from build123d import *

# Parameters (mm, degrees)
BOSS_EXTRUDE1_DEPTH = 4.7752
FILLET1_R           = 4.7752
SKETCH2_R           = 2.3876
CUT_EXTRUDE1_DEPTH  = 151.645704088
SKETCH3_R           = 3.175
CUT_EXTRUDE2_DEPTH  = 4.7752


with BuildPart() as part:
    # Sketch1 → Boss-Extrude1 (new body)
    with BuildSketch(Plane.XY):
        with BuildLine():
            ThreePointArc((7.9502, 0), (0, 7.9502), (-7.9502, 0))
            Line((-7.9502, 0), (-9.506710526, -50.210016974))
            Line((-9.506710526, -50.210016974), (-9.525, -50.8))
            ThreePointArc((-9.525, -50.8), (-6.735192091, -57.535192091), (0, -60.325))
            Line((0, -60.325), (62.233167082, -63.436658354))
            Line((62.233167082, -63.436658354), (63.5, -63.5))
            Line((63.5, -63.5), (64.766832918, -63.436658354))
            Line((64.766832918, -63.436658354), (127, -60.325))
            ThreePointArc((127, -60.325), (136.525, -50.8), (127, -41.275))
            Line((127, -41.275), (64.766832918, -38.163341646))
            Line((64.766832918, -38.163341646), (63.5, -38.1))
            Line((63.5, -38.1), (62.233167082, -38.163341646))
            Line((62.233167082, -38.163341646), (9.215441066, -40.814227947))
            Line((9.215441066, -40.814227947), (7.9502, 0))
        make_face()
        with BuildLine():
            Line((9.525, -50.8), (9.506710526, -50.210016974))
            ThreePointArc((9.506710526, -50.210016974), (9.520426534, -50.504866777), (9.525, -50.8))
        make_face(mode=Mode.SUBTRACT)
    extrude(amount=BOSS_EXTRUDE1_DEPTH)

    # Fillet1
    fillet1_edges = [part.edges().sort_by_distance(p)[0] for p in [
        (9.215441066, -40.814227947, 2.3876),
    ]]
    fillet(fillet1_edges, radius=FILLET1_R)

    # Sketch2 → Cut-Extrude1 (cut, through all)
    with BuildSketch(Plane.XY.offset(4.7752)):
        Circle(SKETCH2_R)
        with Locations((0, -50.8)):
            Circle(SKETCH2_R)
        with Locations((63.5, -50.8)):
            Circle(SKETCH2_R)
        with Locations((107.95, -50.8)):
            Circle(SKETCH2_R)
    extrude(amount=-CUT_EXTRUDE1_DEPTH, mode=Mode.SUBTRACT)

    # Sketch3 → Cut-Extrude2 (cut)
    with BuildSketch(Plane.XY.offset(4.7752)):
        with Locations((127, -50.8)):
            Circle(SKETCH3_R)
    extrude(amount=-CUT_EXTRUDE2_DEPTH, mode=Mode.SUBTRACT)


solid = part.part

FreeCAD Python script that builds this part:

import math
import FreeCAD as App
import Part
import Sketcher

V = App.Vector
Q = App.Units.Quantity


def edges_at(feature, points):
    """Names of the edges that pass closest to the given points."""
    edges = feature.Shape.Edges
    near = lambda p: min(range(len(edges)), key=lambda i: edges[i].distToShape(Part.Vertex(*p))[0])
    return sorted({f"Edge{near(p) + 1}" for p in points})

doc = App.newDocument("Part")
params = doc.addObject("Spreadsheet::Sheet", "Params")
for row, (alias, value) in enumerate([
    ("sketch1_radius", "0.313 in"),
    ("sketch1_radius2", "0.375 in"),
    ("pad1_length", "0.188 in"),
    ("fillet_radius", "0.188 in"),
    ("sketch2_diameter", "0.188 in"),
    ("sketch3_diameter", "0.25 in"),
    ("pocket2_length", "0.188 in"),
], start=1):
    params.set(f"A{row}", alias)
    params.set(f"B{row}", "=" + value)
    params.setAlias(f"B{row}", alias)

body = doc.addObject("PartDesign::Body", "Body")

# Sketch on XY plane
sketch1 = body.newObject("Sketcher::SketchObject", "Sketch")
sketch1.AttachmentSupport = (doc.getObject("XY_Plane"), [""])
sketch1.MapMode = "FlatFace"
sketch1.addGeometry([
    Part.ArcOfCircle(Part.Circle(V(0, 0, 0), V(0, 0, 1), 8), math.radians(0), math.radians(180)),  # 0
    Part.LineSegment(V(-8, 0, 0), V(-9.5, -50.2, 0)),  # 1
    Part.LineSegment(V(-9.5, -50.2, 0), V(-9.5, -50.8, 0)),  # 2
    Part.ArcOfCircle(Part.Circle(V(0, -50.8, 0), V(0, 0, 1), 9.5), math.radians(180), math.radians(270)),  # 3
    Part.LineSegment(V(0, -60.3, 0), V(62.2, -63.4, 0)),  # 4
    Part.LineSegment(V(62.2, -63.4, 0), V(63.5, -63.5, 0)),  # 5
    Part.LineSegment(V(63.5, -63.5, 0), V(64.8, -63.4, 0)),  # 6
    Part.LineSegment(V(64.8, -63.4, 0), V(127, -60.3, 0)),  # 7
    Part.ArcOfCircle(Part.Circle(V(127, -50.8, 0), V(0, 0, 1), 9.5), math.radians(-90), math.radians(90)),  # 8
    Part.LineSegment(V(127, -41.3, 0), V(64.8, -38.2, 0)),  # 9
    Part.LineSegment(V(64.8, -38.2, 0), V(63.5, -38.1, 0)),  # 10
    Part.LineSegment(V(63.5, -38.1, 0), V(62.2, -38.2, 0)),  # 11
    Part.LineSegment(V(62.2, -38.2, 0), V(9.2, -40.8, 0)),  # 12
    Part.LineSegment(V(9.2, -40.8, 0), V(8, 0, 0)),  # 13
    Part.ArcOfCircle(Part.Circle(V(0, -50.8, 0), V(0, 0, 1), 9.5), math.radians(0), math.radians(3.55)),  # 14
    Part.LineSegment(V(9.5, -50.8, 0), V(9.5, -50.2, 0)),  # 15
], False)
sketch1.addConstraint([
    Sketcher.Constraint("Coincident", 0, 2, 1, 1),
    Sketcher.Constraint("Coincident", 1, 2, 2, 1),
    Sketcher.Constraint("Coincident", 2, 2, 3, 1),
    Sketcher.Constraint("Coincident", 3, 2, 4, 1),
    Sketcher.Constraint("Coincident", 4, 2, 5, 1),
    Sketcher.Constraint("Coincident", 5, 2, 6, 1),
    Sketcher.Constraint("Coincident", 6, 2, 7, 1),
    Sketcher.Constraint("Coincident", 7, 2, 8, 1),
    Sketcher.Constraint("Coincident", 8, 2, 9, 1),
    Sketcher.Constraint("Coincident", 9, 2, 10, 1),
    Sketcher.Constraint("Coincident", 10, 2, 11, 1),
    Sketcher.Constraint("Coincident", 11, 2, 12, 1),
    Sketcher.Constraint("Coincident", 12, 2, 13, 1),
    Sketcher.Constraint("Coincident", 13, 2, 0, 1),
    Sketcher.Constraint("Coincident", 14, 1, 15, 1),
    Sketcher.Constraint("Coincident", 15, 2, 14, 2),
    Sketcher.Constraint("Coincident", 0, 3, -1, 1),
    Sketcher.Constraint("Coincident", 14, 3, 3, 3),
    Sketcher.Constraint("Equal", 3, 8),
    Sketcher.Constraint("Equal", 8, 14),
    Sketcher.Constraint("Symmetric", 2, 2, 14, 1, -2),
    Sketcher.Constraint("Symmetric", 1, 2, 15, 2, -2),
    Sketcher.Constraint("PointOnObject", 0, 2, -1),
    Sketcher.Constraint("PointOnObject", 3, 2, -2),
    Sketcher.Constraint("PointOnObject", 13, 2, -1),
    Sketcher.Constraint("Parallel", 1, 2),
    Sketcher.Constraint("Parallel", 4, 5),
    Sketcher.Constraint("Parallel", 6, 7),
    Sketcher.Constraint("Parallel", 5, 9),
    Sketcher.Constraint("Parallel", 9, 10),
    Sketcher.Constraint("Parallel", 7, 11),
    Sketcher.Constraint("Parallel", 11, 12),
    Sketcher.Constraint("Parallel", 13, 15),
    Sketcher.Constraint("Horizontal", 3, 3, 8, 3),
    Sketcher.Constraint("Horizontal", 14, 3, 2, 2),
    Sketcher.Constraint("Horizontal", 4, 2, 6, 2),
    Sketcher.Constraint("Horizontal", 9, 2, 11, 2),
    Sketcher.Constraint("Vertical", 8, 3, 7, 2),
    Sketcher.Constraint("Vertical", 7, 2, 8, 2),
    Sketcher.Constraint("Vertical", 6, 2, 9, 2),
    Sketcher.Constraint("Vertical", 5, 2, 10, 2),
    Sketcher.Constraint("Vertical", 4, 2, 11, 2),
    Sketcher.Constraint("DistanceY", 3, 3, -1, 1, Q("2 in")),
    Sketcher.Constraint("DistanceX", -1, 1, 8, 3, Q("5 in")),
    Sketcher.Constraint("Radius", 0, Q("0.313 in")),
    Sketcher.Constraint("Radius", 3, Q("0.375 in")),
    Sketcher.Constraint("DistanceY", 5, 2, 10, 2, Q("1 in")),
    Sketcher.Constraint("Distance", 4, Q("62.31091 mm")),
])
sketch1.setExpression("Constraints[44]", "Params.sketch1_radius")
sketch1.setExpression("Constraints[45]", "Params.sketch1_radius2")
pad1 = body.newObject("PartDesign::Pad", "Pad")
pad1.Profile = sketch1
pad1.setExpression("Length", "Params.pad1_length")
doc.recompute()

fillet = body.newObject("PartDesign::Fillet", "Fillet")
fillet.Base = (pad1, edges_at(pad1, [(9.215, -40.814, 2.388)]))
fillet.setExpression("Radius", "Params.fillet_radius")

# Sketch on XY plane
sketch2 = body.newObject("Sketcher::SketchObject", "Sketch001")
sketch2.AttachmentSupport = (doc.getObject("XY_Plane"), [""])
sketch2.MapMode = "FlatFace"
sketch2.AttachmentOffset = App.Placement(V(0, 0, 0.188 * 25.4), App.Rotation())
sketch2.addGeometry([
    Part.Circle(V(0, 0, 0), V(0, 0, 1), 2.4),
    Part.Circle(V(0, -50.8, 0), V(0, 0, 1), 2.4),
    Part.Circle(V(63.5, -50.8, 0), V(0, 0, 1), 2.4),
    Part.Circle(V(108, -50.8, 0), V(0, 0, 1), 2.4),
], False)
sketch2.addConstraint([
    Sketcher.Constraint("Coincident", 0, 3, -1, 1),
    Sketcher.Constraint("Equal", 0, 1),
    Sketcher.Constraint("Equal", 1, 2),
    Sketcher.Constraint("Equal", 2, 3),
    Sketcher.Constraint("PointOnObject", 1, 3, -2),
    Sketcher.Constraint("Horizontal", 1, 3, 2, 3),
    Sketcher.Constraint("Horizontal", 2, 3, 3, 3),
    Sketcher.Constraint("Diameter", 0, Q("0.188 in")),
    Sketcher.Constraint("DistanceY", 1, 3, -1, 1, Q("2 in")),
    Sketcher.Constraint("DistanceX", -1, 1, 2, 3, Q("2.5 in")),
    Sketcher.Constraint("DistanceX", -1, 1, 3, 3, Q("4.25 in")),
])
sketch2.setExpression("Constraints[7]", "Params.sketch2_diameter")
pocket1 = body.newObject("PartDesign::Pocket", "Pocket")
pocket1.Profile = sketch2
pocket1.Type = "ThroughAll"

# Sketch on XY plane
sketch3 = body.newObject("Sketcher::SketchObject", "Sketch002")
sketch3.AttachmentSupport = (doc.getObject("XY_Plane"), [""])
sketch3.MapMode = "FlatFace"
sketch3.AttachmentOffset = App.Placement(V(0, 0, 0.188 * 25.4), App.Rotation())
sketch3.addGeometry(Part.Circle(V(127, -50.8, 0), V(0, 0, 1), 3.2), False)
sketch3.addConstraint([
    Sketcher.Constraint("Diameter", 0, Q("0.25 in")),
    Sketcher.Constraint("DistanceX", -1, 1, 0, 3, Q("5 in")),
    Sketcher.Constraint("DistanceY", 0, 3, -1, 1, Q("2 in")),
])
sketch3.setExpression("Constraints[0]", "Params.sketch3_diameter")
pocket2 = body.newObject("PartDesign::Pocket", "Pocket001")
pocket2.Profile = sketch3
pocket2.setExpression("Length", "Params.pocket2_length")

doc.recompute()
